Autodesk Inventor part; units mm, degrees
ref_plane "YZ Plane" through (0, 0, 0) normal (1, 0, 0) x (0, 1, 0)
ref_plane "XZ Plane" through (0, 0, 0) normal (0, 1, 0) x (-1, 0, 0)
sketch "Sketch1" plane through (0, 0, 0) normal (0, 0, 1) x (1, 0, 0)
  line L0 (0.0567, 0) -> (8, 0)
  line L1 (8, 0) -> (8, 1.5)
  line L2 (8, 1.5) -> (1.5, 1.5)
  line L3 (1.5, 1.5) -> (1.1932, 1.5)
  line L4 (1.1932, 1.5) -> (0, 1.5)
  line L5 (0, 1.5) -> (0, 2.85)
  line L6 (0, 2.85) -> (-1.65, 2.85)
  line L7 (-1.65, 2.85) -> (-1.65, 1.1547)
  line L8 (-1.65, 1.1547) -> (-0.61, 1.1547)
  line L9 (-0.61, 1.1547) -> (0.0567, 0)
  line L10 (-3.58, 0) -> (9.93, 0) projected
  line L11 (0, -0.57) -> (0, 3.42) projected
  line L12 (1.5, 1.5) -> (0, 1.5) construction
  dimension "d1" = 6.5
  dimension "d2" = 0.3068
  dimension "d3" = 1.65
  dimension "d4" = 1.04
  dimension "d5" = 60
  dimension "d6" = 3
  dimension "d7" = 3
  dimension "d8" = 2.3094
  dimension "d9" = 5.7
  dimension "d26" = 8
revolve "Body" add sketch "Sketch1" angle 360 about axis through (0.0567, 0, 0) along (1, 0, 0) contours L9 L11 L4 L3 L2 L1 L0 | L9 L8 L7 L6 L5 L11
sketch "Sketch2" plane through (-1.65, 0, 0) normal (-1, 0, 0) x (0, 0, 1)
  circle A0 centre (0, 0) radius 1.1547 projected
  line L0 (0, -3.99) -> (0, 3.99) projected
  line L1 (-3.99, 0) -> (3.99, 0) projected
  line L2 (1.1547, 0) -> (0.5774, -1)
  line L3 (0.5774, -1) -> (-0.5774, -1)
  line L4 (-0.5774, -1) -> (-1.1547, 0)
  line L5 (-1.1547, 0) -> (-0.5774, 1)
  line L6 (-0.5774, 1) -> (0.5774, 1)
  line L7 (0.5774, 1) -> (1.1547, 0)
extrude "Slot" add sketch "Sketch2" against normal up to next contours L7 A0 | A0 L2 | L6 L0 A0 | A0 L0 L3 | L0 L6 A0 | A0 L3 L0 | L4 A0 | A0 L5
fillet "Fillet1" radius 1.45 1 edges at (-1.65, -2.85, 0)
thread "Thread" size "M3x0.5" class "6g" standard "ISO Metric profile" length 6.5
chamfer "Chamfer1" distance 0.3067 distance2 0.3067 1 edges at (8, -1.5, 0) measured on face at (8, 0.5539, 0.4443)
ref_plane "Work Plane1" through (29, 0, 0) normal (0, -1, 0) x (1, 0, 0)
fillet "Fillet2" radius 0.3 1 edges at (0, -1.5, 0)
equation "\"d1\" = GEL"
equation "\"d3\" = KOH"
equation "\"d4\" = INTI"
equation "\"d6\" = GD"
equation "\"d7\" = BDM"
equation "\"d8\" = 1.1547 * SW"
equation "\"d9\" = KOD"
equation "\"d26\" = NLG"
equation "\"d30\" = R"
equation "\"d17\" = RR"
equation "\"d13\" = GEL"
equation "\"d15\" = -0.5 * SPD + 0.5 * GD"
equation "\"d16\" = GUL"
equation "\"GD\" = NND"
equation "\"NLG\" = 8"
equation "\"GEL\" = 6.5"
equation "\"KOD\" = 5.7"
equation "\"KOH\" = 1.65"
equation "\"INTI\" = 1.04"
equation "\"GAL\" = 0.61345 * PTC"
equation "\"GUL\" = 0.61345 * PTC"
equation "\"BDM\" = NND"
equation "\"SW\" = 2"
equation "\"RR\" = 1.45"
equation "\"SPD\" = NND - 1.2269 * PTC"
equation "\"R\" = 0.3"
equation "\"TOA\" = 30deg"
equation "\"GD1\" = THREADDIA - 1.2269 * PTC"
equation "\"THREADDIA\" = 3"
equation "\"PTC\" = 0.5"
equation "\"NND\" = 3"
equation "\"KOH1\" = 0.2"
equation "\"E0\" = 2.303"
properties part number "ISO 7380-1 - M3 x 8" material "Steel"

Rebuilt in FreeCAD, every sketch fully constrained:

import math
import FreeCAD as App
import Part
import Sketcher


def edges_at(feature, points):
    """Names of the edges that pass closest to the given points."""
    edges = feature.Shape.Edges
    near = lambda p: min(range(len(edges)), key=lambda i: edges[i].distToShape(Part.Vertex(*p))[0])
    return sorted({f"Edge{near(p) + 1}" for p in points})


def add_polygon(sketch, points):
    """Adds a closed chain of lines whose ends are joined by coincident constraints."""
    first, n = sketch.GeometryCount, len(points)
    for a, b in zip(points, points[1:] + points[:1]):
        sketch.addGeometry(Part.LineSegment(App.Vector(*a, 0), App.Vector(*b, 0)), False)
    for i in range(n):
        sketch.addConstraint(Sketcher.Constraint("Coincident", first + i, 2, first + (i + 1) % n, 1))

doc = App.newDocument("Part")
body = doc.addObject("PartDesign::Body", "Body")

sketch1 = body.newObject("Sketcher::SketchObject", "Sketch")
sketch1.AttachmentSupport = (doc.getObject("XY_Plane"), [""])
sketch1.MapMode = "FlatFace"
add_polygon(sketch1, [(0.0567, 0), (8, 0), (8, 1.5), (0, 1.5), (0, 2.85), (-1.65, 2.85), (-1.65, 1.1547), (-0.61, 1.1547)])
sketch1.addConstraint(Sketcher.Constraint("Horizontal", 0))
sketch1.addConstraint(Sketcher.Constraint("Vertical", 1))
sketch1.addConstraint(Sketcher.Constraint("Horizontal", 2))
sketch1.addConstraint(Sketcher.Constraint("Vertical", 3))
sketch1.addConstraint(Sketcher.Constraint("Horizontal", 4))
sketch1.addConstraint(Sketcher.Constraint("Vertical", 5))
sketch1.addConstraint(Sketcher.Constraint("Horizontal", 6))
sketch1.addConstraint(Sketcher.Constraint("PointOnObject", 0, 2, -1))
sketch1.addConstraint(Sketcher.Constraint("PointOnObject", 2, 2, -2))
sketch1.addConstraint(Sketcher.Constraint("DistanceX", 2, 2, 2, 1, 8.0))
sketch1.addConstraint(Sketcher.Constraint("DistanceX", 4, 2, 4, 1, 1.65))
sketch1.addConstraint(Sketcher.Constraint("DistanceX", 6, 1, 6, 2, 1.04))
sketch1.addConstraint(Sketcher.Constraint("DistanceY", 1, 1, 1, 2, 1.5))
sketch1.addConstraint(Sketcher.Constraint("DistanceY", 3, 1, 3, 2, 1.35))
sketch1.addConstraint(Sketcher.Constraint("DistanceX", 0, 1, 0, 2, 7.9433))
sketch1.addConstraint(Sketcher.Constraint("DistanceY", 5, 2, 5, 1, 1.6953))
revolution = body.newObject("PartDesign::Revolution", "Revolution")
revolution.Profile = sketch1
revolution.ReferenceAxis = (sketch1, ["H_Axis"])
revolution.Angle = 360

sketch2 = body.newObject("Sketcher::SketchObject", "Sketch001")
sketch2.AttachmentSupport = (doc.getObject("YZ_Plane"), [""])
sketch2.MapMode = "FlatFace"
sketch2.AttachmentOffset = App.Placement(App.Vector(0, 0, -1.65), App.Rotation())
sketch2.addGeometry(Part.LineSegment(App.Vector(1, 0.5774, 0), App.Vector(0, 1.1547, 0)), False)
sketch2.addGeometry(Part.ArcOfCircle(Part.Circle(App.Vector(0, 0, 0), App.Vector(0, 0, 1), 1.1547), math.radians(30.002137), math.radians(90)), False)
sketch2.addGeometry(Part.ArcOfCircle(Part.Circle(App.Vector(0, 0, 0), App.Vector(0, 0, 1), 1.1547), math.radians(90), math.radians(149.997863)), False)
sketch2.addGeometry(Part.LineSegment(App.Vector(0, 1.1547, 0), App.Vector(-1, 0.5774, 0)), False)
sketch2.addGeometry(Part.ArcOfCircle(Part.Circle(App.Vector(0, 0, 0), App.Vector(0, 0, 1), 1.1547), math.radians(-30.002137), math.radians(30.002137)), False)
sketch2.addGeometry(Part.LineSegment(App.Vector(1, 0.5774, 0), App.Vector(1, -0.5774, 0)), False)
sketch2.addGeometry(Part.LineSegment(App.Vector(-1, 0.5774, 0), App.Vector(-1, -0.5774, 0)), False)
sketch2.addGeometry(Part.ArcOfCircle(Part.Circle(App.Vector(0, 0, 0), App.Vector(0, 0, 1), 1.1547), math.radians(149.997863), math.radians(210.002137)), False)
sketch2.addGeometry(Part.LineSegment(App.Vector(-1, -0.5774, 0), App.Vector(0, -1.1547, 0)), False)
sketch2.addGeometry(Part.ArcOfCircle(Part.Circle(App.Vector(0, 0, 0), App.Vector(0, 0, 1), 1.1547), math.radians(-149.997863), math.radians(-90)), False)
sketch2.addGeometry(Part.ArcOfCircle(Part.Circle(App.Vector(0, 0, 0), App.Vector(0, 0, 1), 1.1547), math.radians(-90), math.radians(-30.002137)), False)
sketch2.addGeometry(Part.LineSegment(App.Vector(0, -1.1547, 0), App.Vector(1, -0.5774, 0)), False)
sketch2.addConstraint(Sketcher.Constraint("Coincident", 0, 1, 1, 1))
sketch2.addConstraint(Sketcher.Constraint("Coincident", 1, 2, 0, 2))
sketch2.addConstraint(Sketcher.Constraint("Coincident", 2, 1, 3, 1))
sketch2.addConstraint(Sketcher.Constraint("Coincident", 3, 2, 2, 2))
sketch2.addConstraint(Sketcher.Constraint("Coincident", 4, 1, 5, 2))
sketch2.addConstraint(Sketcher.Constraint("Coincident", 5, 1, 4, 2))
sketch2.addConstraint(Sketcher.Constraint("Coincident", 6, 1, 7, 1))
sketch2.addConstraint(Sketcher.Constraint("Coincident", 7, 2, 6, 2))
sketch2.addConstraint(Sketcher.Constraint("Coincident", 8, 1, 9, 1))
sketch2.addConstraint(Sketcher.Constraint("Coincident", 9, 2, 8, 2))
sketch2.addConstraint(Sketcher.Constraint("Coincident", 10, 1, 11, 1))
sketch2.addConstraint(Sketcher.Constraint("Coincident", 11, 2, 10, 2))
sketch2.addConstraint(Sketcher.Constraint("Vertical", 5))
sketch2.addConstraint(Sketcher.Constraint("Vertical", 6))
sketch2.addConstraint(Sketcher.Constraint("Coincident", 1, 3, -1, 1))
sketch2.addConstraint(Sketcher.Constraint("Coincident", 2, 3, -1, 1))
sketch2.addConstraint(Sketcher.Constraint("Coincident", 4, 3, -1, 1))
sketch2.addConstraint(Sketcher.Constraint("Coincident", 7, 3, -1, 1))
sketch2.addConstraint(Sketcher.Constraint("Coincident", 9, 3, -1, 1))
sketch2.addConstraint(Sketcher.Constraint("Coincident", 10, 3, -1, 1))
sketch2.addConstraint(Sketcher.Constraint("Coincident", 2, 1, 1, 2))
sketch2.addConstraint(Sketcher.Constraint("Coincident", 5, 1, 0, 1))
sketch2.addConstraint(Sketcher.Constraint("Coincident", 6, 1, 3, 2))
sketch2.addConstraint(Sketcher.Constraint("Coincident", 8, 1, 7, 2))
sketch2.addConstraint(Sketcher.Constraint("Coincident", 10, 1, 9, 2))
sketch2.addConstraint(Sketcher.Constraint("PointOnObject", 1, 2, -2))
sketch2.addConstraint(Sketcher.Constraint("PointOnObject", 9, 2, -2))
sketch2.addConstraint(Sketcher.Constraint("Parallel", 0, 8))
sketch2.addConstraint(Sketcher.Constraint("Parallel", 3, 11))
sketch2.addConstraint(Sketcher.Constraint("DistanceX", -1, 1, 0, 1, 1.0))
sketch2.addConstraint(Sketcher.Constraint("Radius", 1, 1.1547))
pad1 = body.newObject("PartDesign::Pad", "Pad")
pad1.Profile = sketch2
pad1.Length = 1.1293
doc.recompute()

fillet = body.newObject("PartDesign::Fillet", "Fillet")
fillet.Base = (pad1, edges_at(pad1, [(-1.65, -2.85, 0)]))
fillet.Radius = 1.45
doc.recompute()

chamfer = body.newObject("PartDesign::Chamfer", "Chamfer")
chamfer.Base = (fillet, edges_at(fillet, [(8, -1.5, 0)]))
chamfer.ChamferType = "Two distances"
chamfer.Size = 0.3067
chamfer.Size2 = 0.3067
doc.recompute()

fillet2 = body.newObject("PartDesign::Fillet", "Fillet001")
fillet2.Base = (chamfer, edges_at(chamfer, [(0, -1.5, 0)]))
fillet2.Radius = 0.3

doc.recompute()
